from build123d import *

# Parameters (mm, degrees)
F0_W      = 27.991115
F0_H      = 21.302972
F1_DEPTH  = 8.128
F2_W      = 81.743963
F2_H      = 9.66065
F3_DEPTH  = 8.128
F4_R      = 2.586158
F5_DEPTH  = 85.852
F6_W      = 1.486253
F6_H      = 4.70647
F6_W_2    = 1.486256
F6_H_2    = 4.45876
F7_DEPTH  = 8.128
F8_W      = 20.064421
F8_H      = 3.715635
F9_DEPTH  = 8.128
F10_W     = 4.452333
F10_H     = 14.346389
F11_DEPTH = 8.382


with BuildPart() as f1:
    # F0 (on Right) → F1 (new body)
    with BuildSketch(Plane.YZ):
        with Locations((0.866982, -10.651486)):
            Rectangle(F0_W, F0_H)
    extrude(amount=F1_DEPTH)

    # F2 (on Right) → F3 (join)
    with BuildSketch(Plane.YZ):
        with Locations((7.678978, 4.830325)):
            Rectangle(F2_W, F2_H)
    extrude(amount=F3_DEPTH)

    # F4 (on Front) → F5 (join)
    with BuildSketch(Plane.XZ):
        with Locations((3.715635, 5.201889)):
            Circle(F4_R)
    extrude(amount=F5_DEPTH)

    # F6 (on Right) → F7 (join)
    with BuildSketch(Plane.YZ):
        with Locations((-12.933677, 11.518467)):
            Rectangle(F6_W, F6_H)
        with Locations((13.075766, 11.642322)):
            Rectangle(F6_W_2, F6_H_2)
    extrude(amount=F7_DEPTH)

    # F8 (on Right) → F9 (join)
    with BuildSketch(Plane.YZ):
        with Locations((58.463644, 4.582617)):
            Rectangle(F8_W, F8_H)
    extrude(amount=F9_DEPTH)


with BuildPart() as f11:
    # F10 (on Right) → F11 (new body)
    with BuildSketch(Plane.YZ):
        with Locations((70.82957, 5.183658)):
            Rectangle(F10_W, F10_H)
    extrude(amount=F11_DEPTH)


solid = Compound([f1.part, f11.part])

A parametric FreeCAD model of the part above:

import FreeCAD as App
import Part
import Sketcher

V = App.Vector
Q = App.Units.Quantity

doc = App.newDocument("Part")
body = doc.addObject("PartDesign::Body", "Body")

# Sketch on YZ plane
sketch1 = body.newObject("Sketcher::SketchObject", "Sketch")
sketch1.AttachmentSupport = (doc.getObject("YZ_Plane"), [""])
sketch1.MapMode = "FlatFace"
sketch1.addGeometry(Part.LineSegment(V(-13, 0, 0), V(-13, -21, 0)), False)
sketch1.addGeometry(Part.LineSegment(V(-13, -21, 0), V(15, -21, 0)), False)
sketch1.addGeometry(Part.LineSegment(V(15, -21, 0), V(15, 0, 0)), False)
sketch1.addGeometry(Part.LineSegment(V(15, 0, 0), V(-13, 0, 0)), False)
sketch1.addConstraint(Sketcher.Constraint("Coincident", 0, 2, 1, 1))
sketch1.addConstraint(Sketcher.Constraint("Coincident", 1, 2, 2, 1))
sketch1.addConstraint(Sketcher.Constraint("Coincident", 2, 2, 3, 1))
sketch1.addConstraint(Sketcher.Constraint("Coincident", 3, 2, 0, 1))
sketch1.addConstraint(Sketcher.Constraint("Vertical", 0))
sketch1.addConstraint(Sketcher.Constraint("Horizontal", 1))
sketch1.addConstraint(Sketcher.Constraint("Vertical", 2))
sketch1.addConstraint(Sketcher.Constraint("Horizontal", 3))
sketch1.addConstraint(Sketcher.Constraint("PointOnObject", 2, 2, -1))
sketch1.addConstraint(Sketcher.Constraint("DistanceX", 1, 1, 1, 2, Q("27.991115 mm")))
sketch1.addConstraint(Sketcher.Constraint("DistanceY", 0, 2, 0, 1, Q("21.302972 mm")))
sketch1.addConstraint(Sketcher.Constraint("DistanceX", -1, 1, 1, 2, Q("14.86254 mm")))
pad1 = body.newObject("PartDesign::Pad", "Pad")
pad1.Profile = sketch1
pad1.Length = Q("0.32 in")

# Sketch on YZ plane
sketch2 = body.newObject("Sketcher::SketchObject", "Sketch001")
sketch2.AttachmentSupport = (doc.getObject("YZ_Plane"), [""])
sketch2.MapMode = "FlatFace"
sketch2.addGeometry(Part.LineSegment(V(-33, 10, 0), V(-33, 0, 0)), False)
sketch2.addGeometry(Part.LineSegment(V(-33, 0, 0), V(49, 0, 0)), False)
sketch2.addGeometry(Part.LineSegment(V(49, 0, 0), V(49, 10, 0)), False)
sketch2.addGeometry(Part.LineSegment(V(49, 10, 0), V(-33, 10, 0)), False)
sketch2.addConstraint(Sketcher.Constraint("Coincident", 0, 2, 1, 1))
sketch2.addConstraint(Sketcher.Constraint("Coincident", 1, 2, 2, 1))
sketch2.addConstraint(Sketcher.Constraint("Coincident", 2, 2, 3, 1))
sketch2.addConstraint(Sketcher.Constraint("Coincident", 3, 2, 0, 1))
sketch2.addConstraint(Sketcher.Constraint("Vertical", 0))
sketch2.addConstraint(Sketcher.Constraint("Horizontal", 1))
sketch2.addConstraint(Sketcher.Constraint("Vertical", 2))
sketch2.addConstraint(Sketcher.Constraint("Horizontal", 3))
sketch2.addConstraint(Sketcher.Constraint("PointOnObject", 0, 2, -1))
sketch2.addConstraint(Sketcher.Constraint("DistanceY", 0, 2, 0, 1, Q("9.66065 mm")))
sketch2.addConstraint(Sketcher.Constraint("DistanceX", 1, 1, 1, 2, Q("81.743963 mm")))
sketch2.addConstraint(Sketcher.Constraint("DistanceX", -1, 1, 1, 2, Q("48.550959 mm")))
pad2 = body.newObject("PartDesign::Pad", "Pad001")
pad2.Profile = sketch2
pad2.Length = Q("0.32 in")

# Sketch on XZ plane
sketch3 = body.newObject("Sketcher::SketchObject", "Sketch002")
sketch3.AttachmentSupport = (doc.getObject("XZ_Plane"), [""])
sketch3.MapMode = "FlatFace"
sketch3.addGeometry(Part.Circle(V(3.7, 5.2, 0), V(0, 0, 1), 2.6), False)
sketch3.addConstraint(Sketcher.Constraint("Diameter", 0, Q("5.172316 mm")))
sketch3.addConstraint(Sketcher.Constraint("DistanceY", -1, 1, 0, 3, Q("5.201889 mm")))
sketch3.addConstraint(Sketcher.Constraint("DistanceX", -1, 1, 0, 3, Q("3.715635 mm")))
pad3 = body.newObject("PartDesign::Pad", "Pad002")
pad3.Profile = sketch3
pad3.Length = Q("3.38 in")

# Sketch on YZ plane
sketch4 = body.newObject("Sketcher::SketchObject", "Sketch003")
sketch4.AttachmentSupport = (doc.getObject("YZ_Plane"), [""])
sketch4.MapMode = "FlatFace"
sketch4.addGeometry(Part.LineSegment(V(-13.7, 13.9, 0), V(-13.7, 9.2, 0)), False)
sketch4.addGeometry(Part.LineSegment(V(-13.7, 9.2, 0), V(-12.2, 9.2, 0)), False)
sketch4.addGeometry(Part.LineSegment(V(-12.2, 9.2, 0), V(-12.2, 13.9, 0)), False)
sketch4.addGeometry(Part.LineSegment(V(-12.2, 13.9, 0), V(-13.7, 13.9, 0)), False)
sketch4.addGeometry(Part.LineSegment(V(12.3, 13.9, 0), V(12.3, 9.4, 0)), False)
sketch4.addGeometry(Part.LineSegment(V(12.3, 9.4, 0), V(13.8, 9.4, 0)), False)
sketch4.addGeometry(Part.LineSegment(V(13.8, 9.4, 0), V(13.8, 13.9, 0)), False)
sketch4.addGeometry(Part.LineSegment(V(13.8, 13.9, 0), V(12.3, 13.9, 0)), False)
sketch4.addConstraint(Sketcher.Constraint("Coincident", 0, 2, 1, 1))
sketch4.addConstraint(Sketcher.Constraint("Coincident", 1, 2, 2, 1))
sketch4.addConstraint(Sketcher.Constraint("Coincident", 2, 2, 3, 1))
sketch4.addConstraint(Sketcher.Constraint("Coincident", 3, 2, 0, 1))
sketch4.addConstraint(Sketcher.Constraint("Coincident", 4, 2, 5, 1))
sketch4.addConstraint(Sketcher.Constraint("Coincident", 5, 2, 6, 1))
sketch4.addConstraint(Sketcher.Constraint("Coincident", 6, 2, 7, 1))
sketch4.addConstraint(Sketcher.Constraint("Coincident", 7, 2, 4, 1))
sketch4.addConstraint(Sketcher.Constraint("Vertical", 0))
sketch4.addConstraint(Sketcher.Constraint("Horizontal", 1))
sketch4.addConstraint(Sketcher.Constraint("Vertical", 2))
sketch4.addConstraint(Sketcher.Constraint("Horizontal", 3))
sketch4.addConstraint(Sketcher.Constraint("Vertical", 4))
sketch4.addConstraint(Sketcher.Constraint("Horizontal", 5))
sketch4.addConstraint(Sketcher.Constraint("Vertical", 6))
sketch4.addConstraint(Sketcher.Constraint("Horizontal", 7))
sketch4.addConstraint(Sketcher.Constraint("Horizontal", 3, 2, 6, 2))
sketch4.addConstraint(Sketcher.Constraint("DistanceY", 0, 2, 0, 1, Q("4.70647 mm")))
sketch4.addConstraint(Sketcher.Constraint("DistanceY", 4, 2, 4, 1, Q("4.45876 mm")))
sketch4.addConstraint(Sketcher.Constraint("DistanceX", 1, 1, 1, 2, Q("1.486253 mm")))
sketch4.addConstraint(Sketcher.Constraint("DistanceX", 5, 1, 5, 2, Q("1.486256 mm")))
sketch4.addConstraint(Sketcher.Constraint("DistanceX", 1, 2, -1, 1, Q("12.190551 mm")))
sketch4.addConstraint(Sketcher.Constraint("DistanceY", -1, 1, 4, 2, Q("9.412942 mm")))
sketch4.addConstraint(Sketcher.Constraint("DistanceX", 1, 2, 4, 2, Q("24.523188 mm")))
pad4 = body.newObject("PartDesign::Pad", "Pad003")
pad4.Profile = sketch4
pad4.Length = Q("0.32 in")

# Sketch on YZ plane
sketch5 = body.newObject("Sketcher::SketchObject", "Sketch004")
sketch5.AttachmentSupport = (doc.getObject("YZ_Plane"), [""])
sketch5.MapMode = "FlatFace"
sketch5.addGeometry(Part.LineSegment(V(48.4, 6.4, 0), V(48.4, 2.7, 0)), False)
sketch5.addGeometry(Part.LineSegment(V(48.4, 2.7, 0), V(68.5, 2.7, 0)), False)
sketch5.addGeometry(Part.LineSegment(V(68.5, 2.7, 0), V(68.5, 6.4, 0)), False)
sketch5.addGeometry(Part.LineSegment(V(68.5, 6.4, 0), V(48.4, 6.4, 0)), False)
sketch5.addConstraint(Sketcher.Constraint("Coincident", 0, 2, 1, 1))
sketch5.addConstraint(Sketcher.Constraint("Coincident", 1, 2, 2, 1))
sketch5.addConstraint(Sketcher.Constraint("Coincident", 2, 2, 3, 1))
sketch5.addConstraint(Sketcher.Constraint("Coincident", 3, 2, 0, 1))
sketch5.addConstraint(Sketcher.Constraint("Vertical", 0))
sketch5.addConstraint(Sketcher.Constraint("Horizontal", 1))
sketch5.addConstraint(Sketcher.Constraint("Vertical", 2))
sketch5.addConstraint(Sketcher.Constraint("Horizontal", 3))
sketch5.addConstraint(Sketcher.Constraint("DistanceX", 1, 1, 1, 2, Q("20.064421 mm")))
sketch5.addConstraint(Sketcher.Constraint("DistanceY", -1, 1, 0, 2, Q("2.7248 mm")))
sketch5.addConstraint(Sketcher.Constraint("DistanceY", 0, 2, 0, 1, Q("3.715635 mm")))
sketch5.addConstraint(Sketcher.Constraint("DistanceX", -1, 1, 0, 2, Q("48.431433 mm")))
pad5 = body.newObject("PartDesign::Pad", "Pad004")
pad5.Profile = sketch5
pad5.Length = Q("0.32 in")
body2 = doc.addObject("PartDesign::Body", "Body001")

# Sketch on YZ plane
sketch6 = body2.newObject("Sketcher::SketchObject", "Sketch005")
sketch6.AttachmentSupport = (doc.getObject("YZ_Plane001"), [""])
sketch6.MapMode = "FlatFace"
sketch6.addGeometry(Part.LineSegment(V(68.6, 12.4, 0), V(68.6, -2, 0)), False)
sketch6.addGeometry(Part.LineSegment(V(68.6, -2, 0), V(73.1, -2, 0)), False)
sketch6.addGeometry(Part.LineSegment(V(73.1, -2, 0), V(73.1, 12.4, 0)), False)
sketch6.addGeometry(Part.LineSegment(V(73.1, 12.4, 0), V(68.6, 12.4, 0)), False)
sketch6.addConstraint(Sketcher.Constraint("Coincident", 0, 2, 1, 1))
sketch6.addConstraint(Sketcher.Constraint("Coincident", 1, 2, 2, 1))
sketch6.addConstraint(Sketcher.Constraint("Coincident", 2, 2, 3, 1))
sketch6.addConstraint(Sketcher.Constraint("Coincident", 3, 2, 0, 1))
sketch6.addConstraint(Sketcher.Constraint("Vertical", 0))
sketch6.addConstraint(Sketcher.Constraint("Horizontal", 1))
sketch6.addConstraint(Sketcher.Constraint("Vertical", 2))
sketch6.addConstraint(Sketcher.Constraint("Horizontal", 3))
sketch6.addConstraint(Sketcher.Constraint("DistanceY", 0, 2, 0, 1, Q("14.346389 mm")))
sketch6.addConstraint(Sketcher.Constraint("DistanceX", 1, 1, 1, 2, Q("4.452333 mm")))
sketch6.addConstraint(Sketcher.Constraint("DistanceX", -1, 1, 0, 2, Q("68.603403 mm")))
sketch6.addConstraint(Sketcher.Constraint("DistanceY", 0, 2, -1, 1, Q("1.989537 mm")))
pad6 = body2.newObject("PartDesign::Pad", "Pad005")
pad6.Profile = sketch6
pad6.Length = Q("0.33 in")

doc.recompute()
